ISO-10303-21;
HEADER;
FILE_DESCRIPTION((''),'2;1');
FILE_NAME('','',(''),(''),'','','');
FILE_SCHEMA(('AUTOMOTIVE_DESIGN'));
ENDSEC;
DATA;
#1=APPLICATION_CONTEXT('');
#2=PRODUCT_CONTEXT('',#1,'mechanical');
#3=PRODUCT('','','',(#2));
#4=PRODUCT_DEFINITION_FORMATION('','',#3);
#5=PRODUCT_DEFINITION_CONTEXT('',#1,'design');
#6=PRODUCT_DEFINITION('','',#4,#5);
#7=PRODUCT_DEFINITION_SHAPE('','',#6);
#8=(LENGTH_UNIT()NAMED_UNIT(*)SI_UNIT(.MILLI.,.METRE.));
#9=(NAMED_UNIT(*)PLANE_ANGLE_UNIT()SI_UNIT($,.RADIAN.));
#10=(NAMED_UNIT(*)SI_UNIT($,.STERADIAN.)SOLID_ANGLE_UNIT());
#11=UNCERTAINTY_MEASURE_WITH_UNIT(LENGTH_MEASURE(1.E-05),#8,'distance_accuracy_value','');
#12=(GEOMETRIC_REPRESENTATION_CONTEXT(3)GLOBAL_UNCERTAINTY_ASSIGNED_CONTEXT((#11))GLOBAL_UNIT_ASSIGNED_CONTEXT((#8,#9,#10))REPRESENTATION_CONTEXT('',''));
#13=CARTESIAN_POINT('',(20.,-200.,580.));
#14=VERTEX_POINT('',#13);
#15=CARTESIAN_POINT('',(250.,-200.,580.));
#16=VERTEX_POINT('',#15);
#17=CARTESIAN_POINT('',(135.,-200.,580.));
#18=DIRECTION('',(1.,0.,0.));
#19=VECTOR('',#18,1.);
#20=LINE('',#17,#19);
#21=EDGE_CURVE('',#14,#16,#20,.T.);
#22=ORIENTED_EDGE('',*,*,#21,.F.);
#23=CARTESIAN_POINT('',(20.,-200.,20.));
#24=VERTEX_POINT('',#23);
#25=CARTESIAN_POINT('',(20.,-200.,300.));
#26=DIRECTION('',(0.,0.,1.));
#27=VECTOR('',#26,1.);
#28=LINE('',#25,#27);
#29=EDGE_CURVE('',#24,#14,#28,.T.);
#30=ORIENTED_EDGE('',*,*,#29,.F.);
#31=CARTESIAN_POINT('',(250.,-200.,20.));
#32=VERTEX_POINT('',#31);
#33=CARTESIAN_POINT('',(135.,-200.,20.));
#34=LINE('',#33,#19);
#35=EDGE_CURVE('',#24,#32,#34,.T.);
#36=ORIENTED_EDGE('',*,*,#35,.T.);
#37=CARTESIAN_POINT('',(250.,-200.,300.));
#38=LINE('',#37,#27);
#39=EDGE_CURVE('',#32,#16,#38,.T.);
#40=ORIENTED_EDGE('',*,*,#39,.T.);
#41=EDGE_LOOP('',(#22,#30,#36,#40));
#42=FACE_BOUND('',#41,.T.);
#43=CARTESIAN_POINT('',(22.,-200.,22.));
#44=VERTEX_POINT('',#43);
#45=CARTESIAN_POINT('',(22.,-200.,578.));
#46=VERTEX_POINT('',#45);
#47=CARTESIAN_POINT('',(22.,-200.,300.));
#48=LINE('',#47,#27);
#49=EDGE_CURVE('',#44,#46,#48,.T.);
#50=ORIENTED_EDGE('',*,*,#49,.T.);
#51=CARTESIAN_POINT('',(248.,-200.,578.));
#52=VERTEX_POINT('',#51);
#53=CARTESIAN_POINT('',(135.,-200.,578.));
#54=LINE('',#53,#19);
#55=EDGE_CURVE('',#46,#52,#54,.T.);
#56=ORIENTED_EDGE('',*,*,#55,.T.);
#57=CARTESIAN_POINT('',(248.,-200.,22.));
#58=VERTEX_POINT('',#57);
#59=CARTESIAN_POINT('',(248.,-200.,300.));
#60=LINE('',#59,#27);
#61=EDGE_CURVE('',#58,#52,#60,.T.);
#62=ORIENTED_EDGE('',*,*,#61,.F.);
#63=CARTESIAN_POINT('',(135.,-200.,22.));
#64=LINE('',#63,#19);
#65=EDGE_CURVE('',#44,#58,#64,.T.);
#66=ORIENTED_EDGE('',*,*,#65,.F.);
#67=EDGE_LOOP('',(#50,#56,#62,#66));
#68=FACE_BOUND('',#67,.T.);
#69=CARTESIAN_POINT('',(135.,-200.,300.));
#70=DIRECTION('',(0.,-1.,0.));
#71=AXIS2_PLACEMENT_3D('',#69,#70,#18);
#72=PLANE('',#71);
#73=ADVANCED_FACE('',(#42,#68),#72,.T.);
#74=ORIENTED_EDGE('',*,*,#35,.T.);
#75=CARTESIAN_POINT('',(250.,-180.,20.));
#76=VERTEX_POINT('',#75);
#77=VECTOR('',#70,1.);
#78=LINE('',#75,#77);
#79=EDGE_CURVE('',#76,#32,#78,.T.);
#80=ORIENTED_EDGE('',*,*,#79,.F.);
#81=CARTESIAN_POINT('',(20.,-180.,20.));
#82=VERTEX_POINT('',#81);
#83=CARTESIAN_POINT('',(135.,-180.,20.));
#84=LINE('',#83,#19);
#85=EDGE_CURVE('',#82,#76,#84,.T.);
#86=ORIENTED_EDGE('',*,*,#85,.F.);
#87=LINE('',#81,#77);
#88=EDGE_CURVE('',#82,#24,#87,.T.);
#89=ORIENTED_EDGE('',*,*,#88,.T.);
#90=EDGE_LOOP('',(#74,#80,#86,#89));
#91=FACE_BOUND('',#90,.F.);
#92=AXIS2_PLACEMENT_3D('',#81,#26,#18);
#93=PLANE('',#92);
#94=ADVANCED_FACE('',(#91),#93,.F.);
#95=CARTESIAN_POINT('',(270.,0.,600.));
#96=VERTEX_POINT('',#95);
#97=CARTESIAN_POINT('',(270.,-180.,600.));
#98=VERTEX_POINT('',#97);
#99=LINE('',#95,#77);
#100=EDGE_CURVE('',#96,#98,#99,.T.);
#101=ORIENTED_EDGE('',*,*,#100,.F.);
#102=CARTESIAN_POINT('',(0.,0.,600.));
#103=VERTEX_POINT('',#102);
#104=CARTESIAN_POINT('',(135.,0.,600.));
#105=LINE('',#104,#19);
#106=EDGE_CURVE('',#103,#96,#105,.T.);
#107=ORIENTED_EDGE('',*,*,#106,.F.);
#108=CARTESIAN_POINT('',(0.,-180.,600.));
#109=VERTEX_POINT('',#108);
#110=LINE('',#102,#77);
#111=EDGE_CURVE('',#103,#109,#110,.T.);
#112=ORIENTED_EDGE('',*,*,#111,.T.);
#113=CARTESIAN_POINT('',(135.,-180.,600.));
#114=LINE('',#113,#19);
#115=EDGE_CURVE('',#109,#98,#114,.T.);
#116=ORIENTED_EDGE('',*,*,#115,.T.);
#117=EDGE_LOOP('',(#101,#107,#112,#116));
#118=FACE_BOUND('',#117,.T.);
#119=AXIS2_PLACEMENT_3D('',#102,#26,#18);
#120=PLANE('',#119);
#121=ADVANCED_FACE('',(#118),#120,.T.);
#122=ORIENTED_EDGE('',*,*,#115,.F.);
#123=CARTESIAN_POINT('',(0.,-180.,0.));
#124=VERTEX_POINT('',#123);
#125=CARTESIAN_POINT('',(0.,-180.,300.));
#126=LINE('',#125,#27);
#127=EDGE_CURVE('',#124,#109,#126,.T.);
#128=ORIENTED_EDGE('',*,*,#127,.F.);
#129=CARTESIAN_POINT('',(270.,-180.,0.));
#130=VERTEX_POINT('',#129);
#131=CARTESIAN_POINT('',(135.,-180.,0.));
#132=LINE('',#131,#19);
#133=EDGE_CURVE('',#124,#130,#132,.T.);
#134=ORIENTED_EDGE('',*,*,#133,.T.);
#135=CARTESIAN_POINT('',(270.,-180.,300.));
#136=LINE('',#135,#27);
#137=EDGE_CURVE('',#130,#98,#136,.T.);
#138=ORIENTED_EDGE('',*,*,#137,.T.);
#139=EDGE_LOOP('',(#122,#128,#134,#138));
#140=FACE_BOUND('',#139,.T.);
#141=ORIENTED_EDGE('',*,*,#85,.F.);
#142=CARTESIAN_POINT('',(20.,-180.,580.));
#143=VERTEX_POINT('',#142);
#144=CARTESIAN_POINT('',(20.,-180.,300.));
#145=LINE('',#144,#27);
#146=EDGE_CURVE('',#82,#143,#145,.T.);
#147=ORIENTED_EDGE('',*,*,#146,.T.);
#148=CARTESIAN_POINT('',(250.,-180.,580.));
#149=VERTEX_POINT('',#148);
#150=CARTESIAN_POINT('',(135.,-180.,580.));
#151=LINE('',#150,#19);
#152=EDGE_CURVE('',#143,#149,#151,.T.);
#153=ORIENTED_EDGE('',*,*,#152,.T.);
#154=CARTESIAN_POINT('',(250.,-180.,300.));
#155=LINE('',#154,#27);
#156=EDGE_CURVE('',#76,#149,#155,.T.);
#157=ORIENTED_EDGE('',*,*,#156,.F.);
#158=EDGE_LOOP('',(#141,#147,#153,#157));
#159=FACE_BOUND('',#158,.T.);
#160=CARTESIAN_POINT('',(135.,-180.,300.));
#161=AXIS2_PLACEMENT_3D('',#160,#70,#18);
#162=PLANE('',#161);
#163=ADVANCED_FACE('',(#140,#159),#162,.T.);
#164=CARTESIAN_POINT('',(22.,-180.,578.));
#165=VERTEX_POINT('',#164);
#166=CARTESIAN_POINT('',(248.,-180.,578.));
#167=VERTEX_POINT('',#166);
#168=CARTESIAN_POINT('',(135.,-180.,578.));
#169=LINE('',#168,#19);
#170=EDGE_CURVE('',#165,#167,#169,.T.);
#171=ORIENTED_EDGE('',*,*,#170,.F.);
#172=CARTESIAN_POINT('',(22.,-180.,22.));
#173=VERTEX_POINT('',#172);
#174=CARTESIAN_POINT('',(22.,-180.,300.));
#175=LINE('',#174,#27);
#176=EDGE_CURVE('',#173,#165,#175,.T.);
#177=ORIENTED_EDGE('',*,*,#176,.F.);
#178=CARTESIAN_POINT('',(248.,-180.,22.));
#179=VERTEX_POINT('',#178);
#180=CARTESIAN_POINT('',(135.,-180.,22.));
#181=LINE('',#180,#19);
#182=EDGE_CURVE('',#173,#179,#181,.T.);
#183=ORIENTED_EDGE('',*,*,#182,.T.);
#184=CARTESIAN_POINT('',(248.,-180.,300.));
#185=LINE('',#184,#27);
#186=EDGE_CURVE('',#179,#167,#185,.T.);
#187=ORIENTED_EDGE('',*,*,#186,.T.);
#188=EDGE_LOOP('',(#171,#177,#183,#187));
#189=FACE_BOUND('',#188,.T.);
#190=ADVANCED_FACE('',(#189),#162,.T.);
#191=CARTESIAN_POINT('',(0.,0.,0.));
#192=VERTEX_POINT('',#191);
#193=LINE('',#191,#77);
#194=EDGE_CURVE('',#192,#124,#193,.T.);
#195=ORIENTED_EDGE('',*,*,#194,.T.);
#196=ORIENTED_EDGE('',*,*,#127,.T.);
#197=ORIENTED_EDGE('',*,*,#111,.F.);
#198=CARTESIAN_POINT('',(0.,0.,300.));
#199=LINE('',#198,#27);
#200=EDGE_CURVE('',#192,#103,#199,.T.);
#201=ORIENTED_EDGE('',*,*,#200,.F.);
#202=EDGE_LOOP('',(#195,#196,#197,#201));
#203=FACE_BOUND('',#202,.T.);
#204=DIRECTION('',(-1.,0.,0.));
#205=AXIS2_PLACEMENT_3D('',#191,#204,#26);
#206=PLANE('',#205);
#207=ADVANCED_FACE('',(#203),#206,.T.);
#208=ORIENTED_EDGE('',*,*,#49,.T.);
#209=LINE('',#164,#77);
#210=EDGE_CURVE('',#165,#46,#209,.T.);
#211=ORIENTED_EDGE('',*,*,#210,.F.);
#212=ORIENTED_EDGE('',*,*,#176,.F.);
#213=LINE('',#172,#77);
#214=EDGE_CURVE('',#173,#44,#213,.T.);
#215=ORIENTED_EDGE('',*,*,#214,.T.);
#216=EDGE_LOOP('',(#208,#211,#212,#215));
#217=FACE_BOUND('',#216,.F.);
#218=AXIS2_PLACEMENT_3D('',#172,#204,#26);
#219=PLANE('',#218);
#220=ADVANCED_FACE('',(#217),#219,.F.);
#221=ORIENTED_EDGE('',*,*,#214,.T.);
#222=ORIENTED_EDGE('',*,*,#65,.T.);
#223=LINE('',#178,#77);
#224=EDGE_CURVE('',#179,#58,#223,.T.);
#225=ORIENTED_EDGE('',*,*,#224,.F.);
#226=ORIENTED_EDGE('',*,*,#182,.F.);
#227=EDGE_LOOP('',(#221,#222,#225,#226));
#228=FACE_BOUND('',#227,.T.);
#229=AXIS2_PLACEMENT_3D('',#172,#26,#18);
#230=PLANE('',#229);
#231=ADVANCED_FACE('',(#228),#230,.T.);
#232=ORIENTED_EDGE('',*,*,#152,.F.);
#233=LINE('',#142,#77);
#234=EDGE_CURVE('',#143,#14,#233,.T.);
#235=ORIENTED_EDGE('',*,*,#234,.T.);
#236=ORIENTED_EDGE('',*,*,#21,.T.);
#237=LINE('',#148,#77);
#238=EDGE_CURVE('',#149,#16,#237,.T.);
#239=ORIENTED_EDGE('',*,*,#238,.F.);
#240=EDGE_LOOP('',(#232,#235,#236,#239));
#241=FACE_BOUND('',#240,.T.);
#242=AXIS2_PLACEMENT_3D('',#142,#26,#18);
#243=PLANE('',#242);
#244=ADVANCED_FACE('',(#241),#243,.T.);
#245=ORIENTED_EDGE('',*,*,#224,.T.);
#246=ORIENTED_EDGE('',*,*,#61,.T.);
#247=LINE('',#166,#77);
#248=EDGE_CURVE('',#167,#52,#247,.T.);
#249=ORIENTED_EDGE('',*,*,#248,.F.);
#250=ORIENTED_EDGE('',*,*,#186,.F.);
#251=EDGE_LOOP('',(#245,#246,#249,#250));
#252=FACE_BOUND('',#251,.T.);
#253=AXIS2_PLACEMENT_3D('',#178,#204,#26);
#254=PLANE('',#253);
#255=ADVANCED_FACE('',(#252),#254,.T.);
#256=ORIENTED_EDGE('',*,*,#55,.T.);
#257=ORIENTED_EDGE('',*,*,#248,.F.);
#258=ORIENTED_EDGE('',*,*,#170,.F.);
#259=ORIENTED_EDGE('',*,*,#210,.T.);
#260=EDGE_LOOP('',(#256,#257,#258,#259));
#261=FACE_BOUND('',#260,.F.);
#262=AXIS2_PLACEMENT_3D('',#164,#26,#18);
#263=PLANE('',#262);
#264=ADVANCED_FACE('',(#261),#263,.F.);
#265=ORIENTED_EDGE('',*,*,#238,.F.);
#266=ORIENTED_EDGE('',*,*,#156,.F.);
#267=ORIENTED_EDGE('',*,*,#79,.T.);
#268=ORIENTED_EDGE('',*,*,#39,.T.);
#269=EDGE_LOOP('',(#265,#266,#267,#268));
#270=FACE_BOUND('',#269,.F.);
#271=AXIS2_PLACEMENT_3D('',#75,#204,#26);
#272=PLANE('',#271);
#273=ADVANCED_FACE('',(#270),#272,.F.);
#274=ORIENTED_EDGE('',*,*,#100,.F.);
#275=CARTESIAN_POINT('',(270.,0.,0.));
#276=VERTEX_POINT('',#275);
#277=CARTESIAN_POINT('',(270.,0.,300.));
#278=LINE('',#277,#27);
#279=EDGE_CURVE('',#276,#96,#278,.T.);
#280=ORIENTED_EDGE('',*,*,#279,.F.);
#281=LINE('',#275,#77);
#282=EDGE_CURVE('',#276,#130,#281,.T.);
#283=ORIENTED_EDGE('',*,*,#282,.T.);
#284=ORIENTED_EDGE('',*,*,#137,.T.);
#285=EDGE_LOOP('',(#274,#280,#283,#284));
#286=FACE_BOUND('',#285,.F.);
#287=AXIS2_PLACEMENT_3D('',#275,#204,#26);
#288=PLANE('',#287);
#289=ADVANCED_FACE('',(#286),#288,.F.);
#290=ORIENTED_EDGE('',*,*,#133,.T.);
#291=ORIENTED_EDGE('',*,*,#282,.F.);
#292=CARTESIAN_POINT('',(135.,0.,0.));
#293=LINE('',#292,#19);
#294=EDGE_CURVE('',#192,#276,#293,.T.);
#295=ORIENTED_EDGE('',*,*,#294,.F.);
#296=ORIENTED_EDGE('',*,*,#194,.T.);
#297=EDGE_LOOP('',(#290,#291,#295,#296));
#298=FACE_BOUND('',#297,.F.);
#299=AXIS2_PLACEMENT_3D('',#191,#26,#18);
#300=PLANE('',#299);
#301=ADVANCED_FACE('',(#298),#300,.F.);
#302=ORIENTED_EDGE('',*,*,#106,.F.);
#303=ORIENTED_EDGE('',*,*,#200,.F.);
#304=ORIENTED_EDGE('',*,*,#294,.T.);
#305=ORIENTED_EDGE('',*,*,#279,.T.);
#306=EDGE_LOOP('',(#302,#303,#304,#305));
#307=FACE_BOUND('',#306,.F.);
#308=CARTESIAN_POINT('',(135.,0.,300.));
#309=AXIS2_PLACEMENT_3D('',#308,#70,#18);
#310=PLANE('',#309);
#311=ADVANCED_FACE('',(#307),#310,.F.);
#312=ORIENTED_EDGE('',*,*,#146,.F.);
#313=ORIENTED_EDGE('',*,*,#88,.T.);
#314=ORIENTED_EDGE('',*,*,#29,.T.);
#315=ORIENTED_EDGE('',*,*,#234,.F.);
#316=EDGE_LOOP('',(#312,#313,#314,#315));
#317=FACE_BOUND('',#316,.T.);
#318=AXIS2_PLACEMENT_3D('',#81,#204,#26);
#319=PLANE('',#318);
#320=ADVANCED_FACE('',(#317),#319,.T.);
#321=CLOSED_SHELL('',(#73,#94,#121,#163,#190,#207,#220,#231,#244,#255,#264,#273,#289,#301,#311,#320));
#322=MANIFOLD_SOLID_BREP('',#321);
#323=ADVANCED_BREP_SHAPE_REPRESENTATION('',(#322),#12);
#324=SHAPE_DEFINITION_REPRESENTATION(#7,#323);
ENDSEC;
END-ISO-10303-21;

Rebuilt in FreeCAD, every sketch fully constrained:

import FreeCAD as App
import Part
import Sketcher

V = App.Vector

doc = App.newDocument("Part")
body = doc.addObject("PartDesign::Body", "Body")

sketch1 = body.newObject("Sketcher::SketchObject", "Sketch")
sketch1.AttachmentSupport = (doc.getObject("XZ_Plane"), [""])
sketch1.MapMode = "FlatFace"
sketch1.addGeometry([
    Part.LineSegment(V(0, 600, 0), V(0, 0, 0)),
    Part.LineSegment(V(0, 0, 0), V(270, 0, 0)),
    Part.LineSegment(V(270, 0, 0), V(270, 600, 0)),
    Part.LineSegment(V(270, 600, 0), V(0, 600, 0)),
], False)
sketch1.addConstraint([
    Sketcher.Constraint("Coincident", 0, 2, 1, 1),
    Sketcher.Constraint("Coincident", 1, 2, 2, 1),
    Sketcher.Constraint("Coincident", 2, 2, 3, 1),
    Sketcher.Constraint("Coincident", 3, 2, 0, 1),
    Sketcher.Constraint("Vertical", 0),
    Sketcher.Constraint("Horizontal", 1),
    Sketcher.Constraint("Vertical", 2),
    Sketcher.Constraint("Horizontal", 3),
    Sketcher.Constraint("Coincident", 0, 2, -1, 1),
    Sketcher.Constraint("DistanceX", 1, 1, 1, 2, 270.0),
    Sketcher.Constraint("DistanceY", 0, 2, 0, 1, 600.0),
])
pad1 = body.newObject("PartDesign::Pad", "Pad")
pad1.Profile = sketch1
pad1.Length = 180

sketch2 = body.newObject("Sketcher::SketchObject", "Sketch001")
sketch2.AttachmentSupport = (doc.getObject("XZ_Plane"), [""])
sketch2.MapMode = "FlatFace"
sketch2.AttachmentOffset = App.Placement(V(0, 0, 180), App.Rotation())
sketch2.addGeometry([
    Part.LineSegment(V(20, 580, 0), V(20, 20, 0)),
    Part.LineSegment(V(20, 20, 0), V(250, 20, 0)),
    Part.LineSegment(V(250, 20, 0), V(250, 580, 0)),
    Part.LineSegment(V(250, 580, 0), V(20, 580, 0)),
    Part.LineSegment(V(248, 22, 0), V(22, 22, 0)),
    Part.LineSegment(V(22, 22, 0), V(22, 578, 0)),
    Part.LineSegment(V(22, 578, 0), V(248, 578, 0)),
    Part.LineSegment(V(248, 578, 0), V(248, 22, 0)),
], False)
sketch2.addConstraint([
    Sketcher.Constraint("Coincident", 0, 2, 1, 1),
    Sketcher.Constraint("Coincident", 1, 2, 2, 1),
    Sketcher.Constraint("Coincident", 2, 2, 3, 1),
    Sketcher.Constraint("Coincident", 3, 2, 0, 1),
    Sketcher.Constraint("Coincident", 4, 2, 5, 1),
    Sketcher.Constraint("Coincident", 5, 2, 6, 1),
    Sketcher.Constraint("Coincident", 6, 2, 7, 1),
    Sketcher.Constraint("Coincident", 7, 2, 4, 1),
    Sketcher.Constraint("Vertical", 0),
    Sketcher.Constraint("Horizontal", 1),
    Sketcher.Constraint("Vertical", 2),
    Sketcher.Constraint("Horizontal", 3),
    Sketcher.Constraint("Horizontal", 4),
    Sketcher.Constraint("Vertical", 5),
    Sketcher.Constraint("Horizontal", 6),
    Sketcher.Constraint("Vertical", 7),
    Sketcher.Constraint("DistanceX", 1, 1, 1, 2, 230.0),
    Sketcher.Constraint("DistanceX", 4, 2, 4, 1, 226.0),
    Sketcher.Constraint("DistanceY", 0, 2, 0, 1, 560.0),
    Sketcher.Constraint("DistanceY", 5, 1, 5, 2, 556.0),
    Sketcher.Constraint("DistanceX", -1, 1, 0, 2, 20.0),
    Sketcher.Constraint("DistanceY", -1, 1, 0, 2, 20.0),
    Sketcher.Constraint("DistanceX", -1, 1, 4, 2, 22.0),
    Sketcher.Constraint("DistanceY", -1, 1, 4, 2, 22.0),
])
pad2 = body.newObject("PartDesign::Pad", "Pad001")
pad2.Profile = sketch2
pad2.Length = 20

doc.recompute()
